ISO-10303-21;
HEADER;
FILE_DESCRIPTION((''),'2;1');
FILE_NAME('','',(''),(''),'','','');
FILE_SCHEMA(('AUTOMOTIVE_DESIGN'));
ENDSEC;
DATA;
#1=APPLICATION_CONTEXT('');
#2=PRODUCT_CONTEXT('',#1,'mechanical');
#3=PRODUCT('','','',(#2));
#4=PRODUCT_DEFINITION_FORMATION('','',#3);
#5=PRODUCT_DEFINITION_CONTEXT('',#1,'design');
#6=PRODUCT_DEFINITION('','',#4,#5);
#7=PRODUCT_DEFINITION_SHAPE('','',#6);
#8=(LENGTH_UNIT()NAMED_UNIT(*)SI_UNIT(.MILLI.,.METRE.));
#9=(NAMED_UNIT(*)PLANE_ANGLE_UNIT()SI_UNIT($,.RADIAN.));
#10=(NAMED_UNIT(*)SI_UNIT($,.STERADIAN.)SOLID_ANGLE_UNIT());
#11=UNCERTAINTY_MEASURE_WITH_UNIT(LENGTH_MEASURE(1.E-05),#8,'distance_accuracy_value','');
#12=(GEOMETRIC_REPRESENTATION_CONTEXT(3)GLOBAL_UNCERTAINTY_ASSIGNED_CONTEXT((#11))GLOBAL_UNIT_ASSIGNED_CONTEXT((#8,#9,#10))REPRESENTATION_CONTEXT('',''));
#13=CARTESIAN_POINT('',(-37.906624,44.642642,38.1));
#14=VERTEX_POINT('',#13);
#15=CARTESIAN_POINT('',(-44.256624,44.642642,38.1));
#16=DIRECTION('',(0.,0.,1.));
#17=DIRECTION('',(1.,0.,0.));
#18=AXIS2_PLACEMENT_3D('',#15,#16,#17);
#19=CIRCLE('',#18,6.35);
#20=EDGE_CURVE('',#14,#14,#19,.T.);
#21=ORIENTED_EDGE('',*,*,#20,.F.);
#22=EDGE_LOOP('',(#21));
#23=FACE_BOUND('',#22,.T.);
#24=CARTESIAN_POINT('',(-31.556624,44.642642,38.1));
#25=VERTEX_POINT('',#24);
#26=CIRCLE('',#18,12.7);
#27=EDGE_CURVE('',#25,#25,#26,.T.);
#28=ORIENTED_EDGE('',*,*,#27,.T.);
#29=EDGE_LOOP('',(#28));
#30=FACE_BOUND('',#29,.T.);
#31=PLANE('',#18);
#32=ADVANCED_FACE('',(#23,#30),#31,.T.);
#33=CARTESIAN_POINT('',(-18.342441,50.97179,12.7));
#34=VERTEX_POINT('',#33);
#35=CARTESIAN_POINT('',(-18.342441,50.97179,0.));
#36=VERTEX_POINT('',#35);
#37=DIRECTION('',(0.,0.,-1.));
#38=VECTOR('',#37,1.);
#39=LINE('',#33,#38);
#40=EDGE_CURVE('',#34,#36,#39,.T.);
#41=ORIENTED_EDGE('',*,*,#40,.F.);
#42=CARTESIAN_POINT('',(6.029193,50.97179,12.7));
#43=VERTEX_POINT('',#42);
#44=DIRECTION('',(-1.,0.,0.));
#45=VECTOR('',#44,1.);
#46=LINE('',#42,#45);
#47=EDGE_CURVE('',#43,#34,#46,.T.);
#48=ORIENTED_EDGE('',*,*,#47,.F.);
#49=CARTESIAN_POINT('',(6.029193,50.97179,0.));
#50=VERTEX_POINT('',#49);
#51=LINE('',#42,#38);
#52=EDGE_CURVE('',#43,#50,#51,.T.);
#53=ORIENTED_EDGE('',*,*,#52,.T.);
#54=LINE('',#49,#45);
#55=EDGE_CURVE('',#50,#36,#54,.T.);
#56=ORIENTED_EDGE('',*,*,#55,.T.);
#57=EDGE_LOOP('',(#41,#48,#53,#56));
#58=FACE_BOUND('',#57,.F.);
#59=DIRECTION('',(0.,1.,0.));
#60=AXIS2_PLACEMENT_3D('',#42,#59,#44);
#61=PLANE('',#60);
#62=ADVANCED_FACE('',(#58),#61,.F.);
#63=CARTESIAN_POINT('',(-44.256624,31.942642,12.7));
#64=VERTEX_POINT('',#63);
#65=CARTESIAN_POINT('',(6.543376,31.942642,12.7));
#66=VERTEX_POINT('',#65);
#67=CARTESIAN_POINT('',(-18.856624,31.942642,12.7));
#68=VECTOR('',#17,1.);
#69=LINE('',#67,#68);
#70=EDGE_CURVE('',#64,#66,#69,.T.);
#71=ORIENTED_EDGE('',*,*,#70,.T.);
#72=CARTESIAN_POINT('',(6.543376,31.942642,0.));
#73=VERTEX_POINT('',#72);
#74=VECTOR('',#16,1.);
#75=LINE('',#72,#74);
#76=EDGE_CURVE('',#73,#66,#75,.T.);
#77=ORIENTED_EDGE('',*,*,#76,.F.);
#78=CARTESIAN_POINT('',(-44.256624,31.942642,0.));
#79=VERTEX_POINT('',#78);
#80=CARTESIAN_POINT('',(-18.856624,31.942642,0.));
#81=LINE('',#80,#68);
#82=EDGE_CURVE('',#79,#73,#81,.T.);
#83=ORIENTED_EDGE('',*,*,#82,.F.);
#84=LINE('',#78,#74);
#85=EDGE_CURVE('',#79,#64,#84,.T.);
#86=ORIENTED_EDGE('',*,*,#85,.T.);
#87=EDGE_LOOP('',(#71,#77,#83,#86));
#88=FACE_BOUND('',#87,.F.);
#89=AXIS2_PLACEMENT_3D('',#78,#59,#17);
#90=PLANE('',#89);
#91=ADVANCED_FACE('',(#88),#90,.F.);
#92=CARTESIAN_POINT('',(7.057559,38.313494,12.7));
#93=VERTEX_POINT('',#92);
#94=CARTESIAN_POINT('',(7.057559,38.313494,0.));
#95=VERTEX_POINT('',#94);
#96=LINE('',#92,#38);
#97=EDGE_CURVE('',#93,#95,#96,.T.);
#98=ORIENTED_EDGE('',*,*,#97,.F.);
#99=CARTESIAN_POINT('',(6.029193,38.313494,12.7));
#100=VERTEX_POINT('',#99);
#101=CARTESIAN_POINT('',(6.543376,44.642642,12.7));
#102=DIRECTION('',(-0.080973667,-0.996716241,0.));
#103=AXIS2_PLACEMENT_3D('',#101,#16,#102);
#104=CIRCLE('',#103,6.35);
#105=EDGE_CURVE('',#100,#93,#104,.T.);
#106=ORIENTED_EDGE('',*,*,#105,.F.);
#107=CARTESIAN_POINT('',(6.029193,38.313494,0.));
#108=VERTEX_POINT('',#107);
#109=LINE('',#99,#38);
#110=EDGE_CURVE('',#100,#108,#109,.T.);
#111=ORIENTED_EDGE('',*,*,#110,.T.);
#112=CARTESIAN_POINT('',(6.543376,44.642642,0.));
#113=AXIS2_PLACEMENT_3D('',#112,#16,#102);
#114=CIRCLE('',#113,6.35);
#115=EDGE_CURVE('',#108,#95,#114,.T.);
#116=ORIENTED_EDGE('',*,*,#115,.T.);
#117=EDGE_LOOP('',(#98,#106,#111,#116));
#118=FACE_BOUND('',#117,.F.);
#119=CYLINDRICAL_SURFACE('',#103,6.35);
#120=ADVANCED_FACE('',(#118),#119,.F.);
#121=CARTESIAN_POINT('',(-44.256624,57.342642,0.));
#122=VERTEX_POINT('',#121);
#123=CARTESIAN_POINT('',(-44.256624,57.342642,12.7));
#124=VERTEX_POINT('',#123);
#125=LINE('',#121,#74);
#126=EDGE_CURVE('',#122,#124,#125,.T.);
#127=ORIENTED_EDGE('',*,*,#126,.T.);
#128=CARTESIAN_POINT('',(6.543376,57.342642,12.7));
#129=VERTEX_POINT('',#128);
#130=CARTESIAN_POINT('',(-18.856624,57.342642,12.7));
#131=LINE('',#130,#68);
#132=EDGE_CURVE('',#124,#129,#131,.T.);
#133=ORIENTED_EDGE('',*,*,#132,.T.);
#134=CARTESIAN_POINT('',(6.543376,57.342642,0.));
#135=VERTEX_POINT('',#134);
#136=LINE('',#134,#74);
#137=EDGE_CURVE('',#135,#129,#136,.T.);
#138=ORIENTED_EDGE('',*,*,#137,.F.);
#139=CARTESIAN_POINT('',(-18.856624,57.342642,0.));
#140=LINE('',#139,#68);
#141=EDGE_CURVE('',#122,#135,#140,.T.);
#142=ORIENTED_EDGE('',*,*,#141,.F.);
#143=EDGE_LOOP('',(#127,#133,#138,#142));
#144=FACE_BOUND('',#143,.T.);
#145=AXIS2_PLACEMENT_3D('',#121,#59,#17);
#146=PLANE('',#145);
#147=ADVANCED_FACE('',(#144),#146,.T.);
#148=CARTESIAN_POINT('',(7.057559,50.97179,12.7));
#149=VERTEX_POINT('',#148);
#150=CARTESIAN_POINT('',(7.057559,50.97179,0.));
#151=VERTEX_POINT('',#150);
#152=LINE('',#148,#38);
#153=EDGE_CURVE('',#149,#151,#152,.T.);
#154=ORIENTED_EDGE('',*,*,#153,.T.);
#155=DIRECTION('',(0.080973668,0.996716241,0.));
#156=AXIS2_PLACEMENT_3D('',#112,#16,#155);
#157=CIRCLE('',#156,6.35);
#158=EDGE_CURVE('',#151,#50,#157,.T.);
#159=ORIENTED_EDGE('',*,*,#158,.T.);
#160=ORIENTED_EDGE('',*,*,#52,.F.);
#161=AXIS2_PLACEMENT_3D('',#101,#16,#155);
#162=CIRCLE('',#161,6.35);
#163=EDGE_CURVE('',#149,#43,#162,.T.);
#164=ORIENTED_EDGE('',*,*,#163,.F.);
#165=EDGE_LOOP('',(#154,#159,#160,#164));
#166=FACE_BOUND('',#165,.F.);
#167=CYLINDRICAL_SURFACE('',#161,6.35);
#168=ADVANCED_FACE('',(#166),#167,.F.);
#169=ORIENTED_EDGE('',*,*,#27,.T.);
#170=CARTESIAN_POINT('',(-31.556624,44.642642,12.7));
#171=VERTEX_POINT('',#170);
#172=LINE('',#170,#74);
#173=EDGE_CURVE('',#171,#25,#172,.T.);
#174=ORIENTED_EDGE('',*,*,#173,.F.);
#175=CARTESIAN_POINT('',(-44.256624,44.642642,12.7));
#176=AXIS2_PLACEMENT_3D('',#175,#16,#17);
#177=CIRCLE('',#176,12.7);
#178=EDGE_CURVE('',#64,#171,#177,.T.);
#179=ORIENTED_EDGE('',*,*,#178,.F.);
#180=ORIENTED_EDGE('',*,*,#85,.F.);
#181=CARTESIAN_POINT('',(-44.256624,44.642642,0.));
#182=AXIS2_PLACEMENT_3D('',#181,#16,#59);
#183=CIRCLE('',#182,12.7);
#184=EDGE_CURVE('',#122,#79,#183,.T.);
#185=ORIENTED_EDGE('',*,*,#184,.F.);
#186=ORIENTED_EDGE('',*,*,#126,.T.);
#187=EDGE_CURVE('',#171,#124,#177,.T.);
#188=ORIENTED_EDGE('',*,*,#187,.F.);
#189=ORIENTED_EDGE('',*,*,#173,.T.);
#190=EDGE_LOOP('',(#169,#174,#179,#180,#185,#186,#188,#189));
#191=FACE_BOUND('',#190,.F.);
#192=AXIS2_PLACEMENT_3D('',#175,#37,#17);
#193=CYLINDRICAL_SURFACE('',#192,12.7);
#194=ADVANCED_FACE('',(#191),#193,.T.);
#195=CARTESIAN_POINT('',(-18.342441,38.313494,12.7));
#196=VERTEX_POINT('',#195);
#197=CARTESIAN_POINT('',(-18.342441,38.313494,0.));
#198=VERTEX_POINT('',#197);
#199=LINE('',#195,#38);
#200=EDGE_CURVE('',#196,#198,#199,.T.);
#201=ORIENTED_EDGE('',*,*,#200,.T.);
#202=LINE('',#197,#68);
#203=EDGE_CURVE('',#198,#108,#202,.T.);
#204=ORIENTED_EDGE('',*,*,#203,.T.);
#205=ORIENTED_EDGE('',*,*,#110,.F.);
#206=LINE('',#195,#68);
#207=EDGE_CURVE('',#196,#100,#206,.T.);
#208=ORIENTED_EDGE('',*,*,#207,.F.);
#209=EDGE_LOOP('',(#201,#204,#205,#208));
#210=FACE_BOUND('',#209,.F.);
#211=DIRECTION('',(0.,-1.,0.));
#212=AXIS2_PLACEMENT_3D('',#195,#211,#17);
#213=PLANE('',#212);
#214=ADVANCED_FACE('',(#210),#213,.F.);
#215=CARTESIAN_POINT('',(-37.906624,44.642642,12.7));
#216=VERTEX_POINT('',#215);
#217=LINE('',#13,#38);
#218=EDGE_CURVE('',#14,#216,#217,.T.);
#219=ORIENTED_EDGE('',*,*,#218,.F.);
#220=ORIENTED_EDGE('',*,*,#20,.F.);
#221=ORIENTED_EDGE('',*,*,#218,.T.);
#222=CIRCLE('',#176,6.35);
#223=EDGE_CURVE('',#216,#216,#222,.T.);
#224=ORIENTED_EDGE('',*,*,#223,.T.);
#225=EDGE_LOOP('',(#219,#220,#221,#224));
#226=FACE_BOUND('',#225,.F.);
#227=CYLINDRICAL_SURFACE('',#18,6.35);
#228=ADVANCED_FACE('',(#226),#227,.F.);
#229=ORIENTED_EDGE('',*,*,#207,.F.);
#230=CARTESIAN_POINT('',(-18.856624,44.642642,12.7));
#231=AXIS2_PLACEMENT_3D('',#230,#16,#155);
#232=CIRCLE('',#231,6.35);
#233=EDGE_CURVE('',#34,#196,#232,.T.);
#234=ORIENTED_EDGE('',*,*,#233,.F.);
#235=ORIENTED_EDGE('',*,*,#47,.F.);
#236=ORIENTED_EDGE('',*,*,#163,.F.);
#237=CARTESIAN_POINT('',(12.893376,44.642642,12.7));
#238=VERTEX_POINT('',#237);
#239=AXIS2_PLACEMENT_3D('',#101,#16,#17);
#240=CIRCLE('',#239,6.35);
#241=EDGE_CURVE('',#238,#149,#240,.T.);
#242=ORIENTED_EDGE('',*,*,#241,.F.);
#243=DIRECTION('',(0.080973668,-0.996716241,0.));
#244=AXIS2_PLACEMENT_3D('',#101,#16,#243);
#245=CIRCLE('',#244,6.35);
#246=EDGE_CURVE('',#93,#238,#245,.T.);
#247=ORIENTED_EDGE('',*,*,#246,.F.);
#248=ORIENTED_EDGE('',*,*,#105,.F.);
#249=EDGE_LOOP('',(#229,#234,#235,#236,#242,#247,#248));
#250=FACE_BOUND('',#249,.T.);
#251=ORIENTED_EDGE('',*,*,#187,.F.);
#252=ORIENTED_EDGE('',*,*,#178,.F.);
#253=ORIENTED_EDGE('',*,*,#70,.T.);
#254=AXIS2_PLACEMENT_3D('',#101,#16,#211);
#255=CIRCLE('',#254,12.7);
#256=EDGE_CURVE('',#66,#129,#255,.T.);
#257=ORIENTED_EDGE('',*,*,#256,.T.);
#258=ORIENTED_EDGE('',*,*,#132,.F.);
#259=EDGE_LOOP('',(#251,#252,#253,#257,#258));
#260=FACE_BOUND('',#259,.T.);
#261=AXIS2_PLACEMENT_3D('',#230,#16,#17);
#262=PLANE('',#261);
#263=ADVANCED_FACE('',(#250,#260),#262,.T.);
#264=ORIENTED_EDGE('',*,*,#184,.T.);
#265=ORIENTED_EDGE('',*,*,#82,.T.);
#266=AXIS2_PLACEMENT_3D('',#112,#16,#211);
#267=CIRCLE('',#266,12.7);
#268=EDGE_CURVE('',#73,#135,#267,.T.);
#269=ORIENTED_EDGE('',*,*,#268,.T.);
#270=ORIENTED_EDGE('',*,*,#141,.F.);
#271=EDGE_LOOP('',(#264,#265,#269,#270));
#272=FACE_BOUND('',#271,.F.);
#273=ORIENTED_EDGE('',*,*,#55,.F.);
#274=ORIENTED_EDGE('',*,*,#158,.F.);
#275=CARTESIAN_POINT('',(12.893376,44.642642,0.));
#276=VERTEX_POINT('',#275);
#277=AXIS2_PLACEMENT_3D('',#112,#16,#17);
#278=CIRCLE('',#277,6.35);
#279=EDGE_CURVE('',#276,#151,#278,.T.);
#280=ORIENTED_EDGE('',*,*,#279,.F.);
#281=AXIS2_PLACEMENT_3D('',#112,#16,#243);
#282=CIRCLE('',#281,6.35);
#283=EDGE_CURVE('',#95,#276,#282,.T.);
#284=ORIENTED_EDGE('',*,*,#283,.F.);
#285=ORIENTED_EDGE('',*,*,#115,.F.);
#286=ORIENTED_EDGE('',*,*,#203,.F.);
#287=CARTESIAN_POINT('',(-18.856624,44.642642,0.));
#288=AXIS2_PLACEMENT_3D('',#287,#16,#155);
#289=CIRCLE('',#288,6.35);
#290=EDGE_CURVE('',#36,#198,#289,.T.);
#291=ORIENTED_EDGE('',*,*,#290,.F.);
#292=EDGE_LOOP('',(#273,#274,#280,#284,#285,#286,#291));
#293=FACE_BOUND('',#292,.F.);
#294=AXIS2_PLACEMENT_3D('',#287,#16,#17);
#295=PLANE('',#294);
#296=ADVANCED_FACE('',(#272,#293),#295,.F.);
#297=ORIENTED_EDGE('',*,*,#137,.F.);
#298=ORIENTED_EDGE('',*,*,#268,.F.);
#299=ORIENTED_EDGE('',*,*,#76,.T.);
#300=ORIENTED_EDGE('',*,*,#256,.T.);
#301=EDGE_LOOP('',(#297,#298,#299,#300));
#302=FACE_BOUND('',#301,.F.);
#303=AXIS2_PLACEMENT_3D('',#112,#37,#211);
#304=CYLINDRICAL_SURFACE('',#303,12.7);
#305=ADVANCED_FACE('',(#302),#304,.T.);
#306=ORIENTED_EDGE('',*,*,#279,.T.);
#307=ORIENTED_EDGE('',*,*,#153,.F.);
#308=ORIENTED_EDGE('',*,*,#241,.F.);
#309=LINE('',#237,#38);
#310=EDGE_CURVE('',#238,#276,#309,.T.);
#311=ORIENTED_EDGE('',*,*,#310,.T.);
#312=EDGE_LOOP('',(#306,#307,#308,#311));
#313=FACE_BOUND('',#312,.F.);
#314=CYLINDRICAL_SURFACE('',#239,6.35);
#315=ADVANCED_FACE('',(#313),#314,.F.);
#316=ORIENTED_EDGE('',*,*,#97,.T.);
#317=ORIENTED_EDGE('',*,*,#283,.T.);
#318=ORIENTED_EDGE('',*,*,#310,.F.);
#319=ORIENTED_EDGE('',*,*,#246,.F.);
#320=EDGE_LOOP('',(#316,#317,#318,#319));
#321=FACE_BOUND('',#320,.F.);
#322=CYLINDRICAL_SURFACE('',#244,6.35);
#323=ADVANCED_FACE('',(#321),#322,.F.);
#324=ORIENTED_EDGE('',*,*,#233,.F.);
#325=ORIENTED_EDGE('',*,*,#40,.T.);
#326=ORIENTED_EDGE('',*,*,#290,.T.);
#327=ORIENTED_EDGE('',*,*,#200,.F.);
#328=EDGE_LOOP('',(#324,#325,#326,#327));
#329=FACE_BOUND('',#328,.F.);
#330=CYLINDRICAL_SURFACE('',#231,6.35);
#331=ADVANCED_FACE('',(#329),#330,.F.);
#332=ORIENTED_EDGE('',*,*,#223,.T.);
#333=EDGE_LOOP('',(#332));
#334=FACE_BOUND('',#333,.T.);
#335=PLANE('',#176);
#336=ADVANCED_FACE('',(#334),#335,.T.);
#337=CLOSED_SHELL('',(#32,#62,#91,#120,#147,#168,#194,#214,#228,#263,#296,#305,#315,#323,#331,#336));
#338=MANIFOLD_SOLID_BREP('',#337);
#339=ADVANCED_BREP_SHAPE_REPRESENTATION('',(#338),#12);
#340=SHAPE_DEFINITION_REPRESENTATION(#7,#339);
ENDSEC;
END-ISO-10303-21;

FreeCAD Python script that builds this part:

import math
import FreeCAD as App
import Part
import Sketcher
from FreeCAD import Vector
Q = App.Units.Quantity

doc = App.newDocument("Part")
params = doc.addObject("Spreadsheet::Sheet", "Params")
for row, (alias, value) in enumerate([
    ("sketch1_radius", "0.5 in"),
    ("sketch1_width", "2 in"),
    ("pad1_length", "0.5 in"),
    ("sketch2_diameter", "1 in"),
    ("pad2_length", "1 in"),
    ("sketch3_diameter", "0.5 in"),
    ("pocket1_length", "1 in"),
    ("sketch4_radius", "0.25 in"),
    ("pocket2_length", "0.5 in"),
], start=1):
    params.set(f"A{row}", alias)
    params.set(f"B{row}", "=" + value)
    params.setAlias(f"B{row}", alias)

body = doc.addObject("PartDesign::Body", "Body")

# Sketch on XY plane
sketch1 = body.newObject("Sketcher::SketchObject", "Sketch")
sketch1.AttachmentSupport = (doc.getObject("XY_Plane"), [""])
sketch1.MapMode = "FlatFace"
sketch1.addGeometry([
    Part.LineSegment(Vector(-44.256624, 31.942642, 0), Vector(6.543376, 31.942642, 0)),
    Part.ArcOfCircle(Part.Circle(Vector(6.543376, 44.642642, 0), Vector(0, 0, 1), 12.7), math.radians(-90), math.radians(90)),
    Part.LineSegment(Vector(6.543376, 57.342642, 0), Vector(-44.256624, 57.342642, 0)),
    Part.ArcOfCircle(Part.Circle(Vector(-44.256624, 44.642642, 0), Vector(0, 0, 1), 12.7), math.radians(90), math.radians(270)),
], False)
sketch1.addConstraint([
    Sketcher.Constraint("Tangent", 0, 2, 1, 1),
    Sketcher.Constraint("Tangent", 1, 2, 2, 1),
    Sketcher.Constraint("Tangent", 2, 2, 3, 1),
    Sketcher.Constraint("Tangent", 3, 2, 0, 1),
    Sketcher.Constraint("Horizontal", 0),
    Sketcher.Constraint("Horizontal", 2),
    Sketcher.Constraint("Radius", 1, Q("0.5 in")),
    Sketcher.Constraint("DistanceX", 0, 1, 0, 2, Q("2 in")),
    Sketcher.Constraint("DistanceX", -1, 1, 1, 3, Q("6.543376 mm")),
    Sketcher.Constraint("DistanceY", -1, 1, 1, 3, Q("44.642642 mm")),
])
sketch1.setExpression("Constraints[6]", "Params.sketch1_radius")
sketch1.setExpression("Constraints[7]", "Params.sketch1_width")
pad1 = body.newObject("PartDesign::Pad", "Pad")
pad1.Profile = sketch1
pad1.setExpression("Length", "Params.pad1_length")

# Sketch on XY plane
sketch2 = body.newObject("Sketcher::SketchObject", "Sketch001")
sketch2.AttachmentSupport = (doc.getObject("XY_Plane"), [""])
sketch2.MapMode = "FlatFace"
sketch2.AttachmentOffset = App.Placement(Vector(0, 0, 0.5 * 25.4), App.Rotation())
sketch2.addGeometry(Part.Circle(Vector(-44.256624, 44.642642, 0), Vector(0, 0, 1), 12.7), False)
sketch2.addConstraint([
    Sketcher.Constraint("Diameter", 0, Q("1 in")),
    Sketcher.Constraint("DistanceX", 0, 3, -1, 1, Q("44.256624 mm")),
    Sketcher.Constraint("DistanceY", -1, 1, 0, 3, Q("44.642642 mm")),
])
sketch2.setExpression("Constraints[0]", "Params.sketch2_diameter")
pad2 = body.newObject("PartDesign::Pad", "Pad001")
pad2.Profile = sketch2
pad2.setExpression("Length", "Params.pad2_length")

# Sketch on XY plane
sketch3 = body.newObject("Sketcher::SketchObject", "Sketch002")
sketch3.AttachmentSupport = (doc.getObject("XY_Plane"), [""])
sketch3.MapMode = "FlatFace"
sketch3.AttachmentOffset = App.Placement(Vector(0, 0, 1.5 * 25.4), App.Rotation())
sketch3.addGeometry(Part.Circle(Vector(-44.256624, 44.642642, 0), Vector(0, 0, 1), 6.35), False)
sketch3.addConstraint([
    Sketcher.Constraint("Diameter", 0, Q("0.5 in")),
    Sketcher.Constraint("DistanceX", 0, 3, -1, 1, Q("44.256624 mm")),
    Sketcher.Constraint("DistanceY", -1, 1, 0, 3, Q("44.642642 mm")),
])
sketch3.setExpression("Constraints[0]", "Params.sketch3_diameter")
pocket1 = body.newObject("PartDesign::Pocket", "Pocket")
pocket1.Profile = sketch3
pocket1.setExpression("Length", "Params.pocket1_length")

# Sketch on XY plane
sketch4 = body.newObject("Sketcher::SketchObject", "Sketch003")
sketch4.AttachmentSupport = (doc.getObject("XY_Plane"), [""])
sketch4.MapMode = "FlatFace"
sketch4.AttachmentOffset = App.Placement(Vector(0, 0, 0.5 * 25.4), App.Rotation())
sketch4.addGeometry([
    Part.ArcOfCircle(Part.Circle(Vector(6.543376, 44.642642, 0), Vector(0, 0, 1), 6.35), math.radians(-85.355466), math.radians(0)),  # 0
    Part.ArcOfCircle(Part.Circle(Vector(6.543376, 44.642642, 0), Vector(0, 0, 1), 6.35), math.radians(0), math.radians(85.355466)),  # 1
    Part.ArcOfCircle(Part.Circle(Vector(6.543376, 44.642642, 0), Vector(0, 0, 1), 6.35), math.radians(85.355466), math.radians(94.644534)),  # 2
    Part.LineSegment(Vector(6.029193, 50.97179, 0), Vector(-18.342441, 50.97179, 0)),  # 3
    Part.ArcOfCircle(Part.Circle(Vector(-18.856624, 44.642642, 0), Vector(0, 0, 1), 6.35), math.radians(85.355466), math.radians(274.644534)),  # 4
    Part.LineSegment(Vector(-18.342441, 38.313494, 0), Vector(6.029193, 38.313494, 0)),  # 5
    Part.ArcOfCircle(Part.Circle(Vector(6.543376, 44.642642, 0), Vector(0, 0, 1), 6.35), math.radians(-94.644534), math.radians(-85.355466)),  # 6
], False)
sketch4.addConstraint([
    Sketcher.Constraint("Tangent", 0, 2, 1, 1),
    Sketcher.Constraint("Tangent", 1, 2, 2, 1),
    Sketcher.Constraint("Coincident", 2, 2, 3, 1),
    Sketcher.Constraint("Coincident", 3, 2, 4, 1),
    Sketcher.Constraint("Coincident", 4, 2, 5, 1),
    Sketcher.Constraint("Coincident", 5, 2, 6, 1),
    Sketcher.Constraint("Tangent", 6, 2, 0, 1),
    Sketcher.Constraint("Horizontal", 3),
    Sketcher.Constraint("Horizontal", 5),
    Sketcher.Constraint("Coincident", 2, 3, 0, 3),
    Sketcher.Constraint("Equal", 2, 4),
    Sketcher.Constraint("Equal", 4, 6),
    Sketcher.Constraint("Horizontal", 2, 3, 4, 3),
    Sketcher.Constraint("Horizontal", 6, 3, 0, 2),
    Sketcher.Constraint("Horizontal", 1, 2, 2, 2),
    Sketcher.Constraint("Horizontal", 5, 2, 6, 2),
    Sketcher.Constraint("Vertical", 3, 2, 4, 2),
    Sketcher.Constraint("Radius", 0, Q("0.25 in")),
    Sketcher.Constraint("DistanceX", 4, 3, 2, 3, Q("1 in")),
    Sketcher.Constraint("DistanceX", 3, 2, 3, 1, Q("24.371634 mm")),
    Sketcher.Constraint("DistanceX", -1, 1, 1, 2, Q("7.057559 mm")),
    Sketcher.Constraint("DistanceY", -1, 1, 1, 2, Q("50.97179 mm")),
])
sketch4.setExpression("Constraints[17]", "Params.sketch4_radius")
pocket2 = body.newObject("PartDesign::Pocket", "Pocket001")
pocket2.Profile = sketch4
pocket2.setExpression("Length", "Params.pocket2_length")

doc.recompute()
